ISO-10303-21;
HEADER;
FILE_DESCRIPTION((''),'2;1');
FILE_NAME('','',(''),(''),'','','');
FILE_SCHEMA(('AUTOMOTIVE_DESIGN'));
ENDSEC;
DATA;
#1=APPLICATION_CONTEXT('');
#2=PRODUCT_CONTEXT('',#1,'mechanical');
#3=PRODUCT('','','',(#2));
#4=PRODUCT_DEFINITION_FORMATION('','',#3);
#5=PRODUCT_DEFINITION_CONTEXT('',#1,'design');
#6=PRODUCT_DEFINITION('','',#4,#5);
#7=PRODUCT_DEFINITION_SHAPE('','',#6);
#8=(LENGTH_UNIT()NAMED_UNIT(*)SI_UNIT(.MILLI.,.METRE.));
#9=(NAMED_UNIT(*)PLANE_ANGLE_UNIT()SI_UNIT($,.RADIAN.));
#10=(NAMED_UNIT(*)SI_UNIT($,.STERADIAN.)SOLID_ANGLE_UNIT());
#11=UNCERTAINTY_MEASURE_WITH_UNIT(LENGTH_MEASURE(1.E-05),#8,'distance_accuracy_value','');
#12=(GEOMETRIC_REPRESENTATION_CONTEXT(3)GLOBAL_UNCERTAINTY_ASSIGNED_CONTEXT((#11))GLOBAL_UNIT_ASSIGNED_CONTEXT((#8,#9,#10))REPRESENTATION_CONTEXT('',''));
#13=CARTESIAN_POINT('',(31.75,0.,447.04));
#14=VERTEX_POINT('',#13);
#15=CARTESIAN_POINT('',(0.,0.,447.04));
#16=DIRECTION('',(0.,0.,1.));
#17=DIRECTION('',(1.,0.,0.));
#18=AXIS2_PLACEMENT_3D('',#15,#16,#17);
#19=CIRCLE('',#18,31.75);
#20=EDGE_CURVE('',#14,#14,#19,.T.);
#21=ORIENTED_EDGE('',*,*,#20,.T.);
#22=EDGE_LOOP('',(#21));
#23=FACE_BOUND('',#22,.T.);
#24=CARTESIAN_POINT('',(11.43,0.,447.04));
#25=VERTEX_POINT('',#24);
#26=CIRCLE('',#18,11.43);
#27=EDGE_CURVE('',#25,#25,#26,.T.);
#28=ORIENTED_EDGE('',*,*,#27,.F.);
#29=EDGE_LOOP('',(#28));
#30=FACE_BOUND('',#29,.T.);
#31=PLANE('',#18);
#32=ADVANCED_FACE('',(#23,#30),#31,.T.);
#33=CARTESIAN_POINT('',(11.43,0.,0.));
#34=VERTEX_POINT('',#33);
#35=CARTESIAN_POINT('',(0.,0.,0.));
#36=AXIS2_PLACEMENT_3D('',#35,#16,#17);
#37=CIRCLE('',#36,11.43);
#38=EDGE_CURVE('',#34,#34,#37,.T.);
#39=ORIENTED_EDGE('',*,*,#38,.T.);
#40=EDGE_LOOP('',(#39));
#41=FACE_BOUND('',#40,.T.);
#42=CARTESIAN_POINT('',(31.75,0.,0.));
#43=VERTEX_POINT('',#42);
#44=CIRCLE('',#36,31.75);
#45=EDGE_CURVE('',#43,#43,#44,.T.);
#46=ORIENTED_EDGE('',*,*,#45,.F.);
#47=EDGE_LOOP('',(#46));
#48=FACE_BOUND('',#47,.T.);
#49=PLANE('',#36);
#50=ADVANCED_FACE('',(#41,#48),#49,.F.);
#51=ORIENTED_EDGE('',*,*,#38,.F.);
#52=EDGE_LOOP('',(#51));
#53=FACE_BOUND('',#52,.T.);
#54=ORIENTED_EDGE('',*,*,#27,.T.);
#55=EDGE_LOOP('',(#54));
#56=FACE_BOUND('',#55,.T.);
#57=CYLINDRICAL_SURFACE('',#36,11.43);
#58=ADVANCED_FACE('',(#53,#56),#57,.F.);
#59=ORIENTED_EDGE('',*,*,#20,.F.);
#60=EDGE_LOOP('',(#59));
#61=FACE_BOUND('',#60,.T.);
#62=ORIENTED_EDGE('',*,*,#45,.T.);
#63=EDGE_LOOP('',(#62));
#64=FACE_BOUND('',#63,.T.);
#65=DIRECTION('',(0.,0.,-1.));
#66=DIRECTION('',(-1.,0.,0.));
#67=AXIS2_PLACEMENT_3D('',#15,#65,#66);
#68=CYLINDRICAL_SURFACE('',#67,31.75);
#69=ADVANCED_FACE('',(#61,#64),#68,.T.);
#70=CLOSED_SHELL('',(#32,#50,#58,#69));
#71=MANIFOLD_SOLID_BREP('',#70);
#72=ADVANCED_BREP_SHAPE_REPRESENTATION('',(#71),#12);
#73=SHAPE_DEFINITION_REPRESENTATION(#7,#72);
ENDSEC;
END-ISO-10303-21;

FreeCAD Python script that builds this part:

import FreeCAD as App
import Part
import Sketcher

V = App.Vector
Q = App.Units.Quantity

doc = App.newDocument("Part")
body = doc.addObject("PartDesign::Body", "Body")

sketch1 = body.newObject("Sketcher::SketchObject", "Sketch")
sketch1.AttachmentSupport = (doc.getObject("XY_Plane"), [""])
sketch1.MapMode = "FlatFace"
sketch1.addGeometry(Part.Circle(V(0, 0, 0), V(0, 0, 1), 32), False)
sketch1.addConstraint([
    Sketcher.Constraint("Coincident", 0, 3, -1, 1),
    Sketcher.Constraint("Diameter", 0, Q("2.5 in")),
])
pad1 = body.newObject("PartDesign::Pad", "Pad")
pad1.Profile = sketch1
pad1.Length = Q("17.6 in")

sketch2 = body.newObject("Sketcher::SketchObject", "Sketch001")
sketch2.AttachmentSupport = (doc.getObject("XY_Plane"), [""])
sketch2.MapMode = "FlatFace"
sketch2.AttachmentOffset = App.Placement(V(0, 0, 17.6 * 25.4), App.Rotation())
sketch2.addGeometry(Part.Circle(V(0, 0, 0), V(0, 0, 1), 11), False)
sketch2.addConstraint([
    Sketcher.Constraint("Coincident", 0, 3, -1, 1),
    Sketcher.Constraint("Diameter", 0, Q("0.9 in")),
])
pocket1 = body.newObject("PartDesign::Pocket", "Pocket")
pocket1.Profile = sketch2
pocket1.Type = "ThroughAll"

doc.recompute()
